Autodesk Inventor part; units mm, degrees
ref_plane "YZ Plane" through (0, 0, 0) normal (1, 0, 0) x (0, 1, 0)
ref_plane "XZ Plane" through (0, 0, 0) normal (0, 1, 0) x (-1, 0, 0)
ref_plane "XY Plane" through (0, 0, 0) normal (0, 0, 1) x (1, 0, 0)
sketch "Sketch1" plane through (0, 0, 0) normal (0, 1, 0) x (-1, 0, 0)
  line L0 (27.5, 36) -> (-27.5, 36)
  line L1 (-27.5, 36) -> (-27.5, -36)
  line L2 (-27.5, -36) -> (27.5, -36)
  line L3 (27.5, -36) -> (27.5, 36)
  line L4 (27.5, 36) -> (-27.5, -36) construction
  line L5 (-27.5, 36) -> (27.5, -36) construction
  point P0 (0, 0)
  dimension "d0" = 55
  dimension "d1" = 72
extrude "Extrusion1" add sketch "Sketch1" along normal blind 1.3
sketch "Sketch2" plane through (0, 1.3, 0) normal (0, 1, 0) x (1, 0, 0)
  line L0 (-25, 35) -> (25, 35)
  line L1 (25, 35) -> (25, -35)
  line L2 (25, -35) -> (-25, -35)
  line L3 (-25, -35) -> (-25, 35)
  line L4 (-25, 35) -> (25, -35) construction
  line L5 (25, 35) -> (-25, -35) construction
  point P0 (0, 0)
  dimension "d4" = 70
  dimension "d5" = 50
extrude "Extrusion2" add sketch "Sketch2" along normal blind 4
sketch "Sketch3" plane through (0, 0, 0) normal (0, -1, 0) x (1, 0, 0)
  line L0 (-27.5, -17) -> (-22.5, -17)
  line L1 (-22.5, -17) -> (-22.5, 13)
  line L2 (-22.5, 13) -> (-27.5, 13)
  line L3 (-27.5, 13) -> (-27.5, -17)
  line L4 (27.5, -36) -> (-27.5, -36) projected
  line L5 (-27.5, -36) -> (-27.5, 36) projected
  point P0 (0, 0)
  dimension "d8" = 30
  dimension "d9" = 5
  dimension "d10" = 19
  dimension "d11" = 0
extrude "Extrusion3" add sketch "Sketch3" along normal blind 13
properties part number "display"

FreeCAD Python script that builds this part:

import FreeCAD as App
import Part
import Sketcher

V = App.Vector
Q = App.Units.Quantity


def add_polygon(sketch, points):
    """Adds a closed chain of lines whose ends are joined by coincident constraints."""
    first, n = sketch.GeometryCount, len(points)
    for a, b in zip(points, points[1:] + points[:1]):
        sketch.addGeometry(Part.LineSegment(App.Vector(*a, 0), App.Vector(*b, 0)), False)
    for i in range(n):
        sketch.addConstraint(Sketcher.Constraint("Coincident", first + i, 2, first + (i + 1) % n, 1))

doc = App.newDocument("Part")
body = doc.addObject("PartDesign::Body", "Body")

sketch1 = body.newObject("Sketcher::SketchObject", "Sketch")
sketch1.AttachmentSupport = (doc.getObject("XZ_Plane"), [""])
sketch1.MapMode = "FlatFace"
add_polygon(sketch1, [(-27.5, -36), (-27.5, 36), (27.5, 36), (27.5, -36)])
sketch1.addConstraint([
    Sketcher.Constraint("Vertical", 0),
    Sketcher.Constraint("Horizontal", 1),
    Sketcher.Constraint("Vertical", 2),
    Sketcher.Constraint("Horizontal", 3),
    Sketcher.Constraint("Symmetric", 0, 2, 2, 2, -1, 1),
    Sketcher.Constraint("DistanceX", 1, 1, 1, 2, Q("55 mm")),
    Sketcher.Constraint("DistanceY", 0, 1, 0, 2, Q("72 mm")),
])
pad1 = body.newObject("PartDesign::Pad", "Pad")
pad1.Profile = sketch1
pad1.Length = 1.3
pad1.Reversed = True

sketch2 = body.newObject("Sketcher::SketchObject", "Sketch001")
sketch2.AttachmentSupport = (doc.getObject("XZ_Plane"), [""])
sketch2.MapMode = "FlatFace"
sketch2.AttachmentOffset = App.Placement(V(0, 0, -1.3), App.Rotation())
add_polygon(sketch2, [(25, -35), (-25, -35), (-25, 35), (25, 35)])
sketch2.addConstraint([
    Sketcher.Constraint("Horizontal", 0),
    Sketcher.Constraint("Vertical", 1),
    Sketcher.Constraint("Horizontal", 2),
    Sketcher.Constraint("Vertical", 3),
    Sketcher.Constraint("Symmetric", 0, 2, 2, 2, -1, 1),
    Sketcher.Constraint("DistanceX", 0, 2, 0, 1, Q("50 mm")),
    Sketcher.Constraint("DistanceY", 1, 1, 1, 2, Q("70 mm")),
])
pad2 = body.newObject("PartDesign::Pad", "Pad001")
pad2.Profile = sketch2
pad2.Length = 4
pad2.Reversed = True

sketch3 = body.newObject("Sketcher::SketchObject", "Sketch002")
sketch3.AttachmentSupport = (doc.getObject("XZ_Plane"), [""])
sketch3.MapMode = "FlatFace"
add_polygon(sketch3, [(-27.5, 13), (-27.5, -17), (-22.5, -17), (-22.5, 13)])
sketch3.addConstraint([
    Sketcher.Constraint("Vertical", 0),
    Sketcher.Constraint("Horizontal", 1),
    Sketcher.Constraint("Vertical", 2),
    Sketcher.Constraint("Horizontal", 3),
    Sketcher.Constraint("DistanceX", 1, 1, 1, 2, Q("5 mm")),
    Sketcher.Constraint("DistanceY", 0, 2, 0, 1, Q("30 mm")),
    Sketcher.Constraint("DistanceY", 0, 2, -1, 1, Q("17 mm")),
    Sketcher.Constraint("DistanceX", 0, 2, -1, 1, Q("27.5 mm")),
])
pad3 = body.newObject("PartDesign::Pad", "Pad002")
pad3.Profile = sketch3
pad3.Length = 13

doc.recompute()
